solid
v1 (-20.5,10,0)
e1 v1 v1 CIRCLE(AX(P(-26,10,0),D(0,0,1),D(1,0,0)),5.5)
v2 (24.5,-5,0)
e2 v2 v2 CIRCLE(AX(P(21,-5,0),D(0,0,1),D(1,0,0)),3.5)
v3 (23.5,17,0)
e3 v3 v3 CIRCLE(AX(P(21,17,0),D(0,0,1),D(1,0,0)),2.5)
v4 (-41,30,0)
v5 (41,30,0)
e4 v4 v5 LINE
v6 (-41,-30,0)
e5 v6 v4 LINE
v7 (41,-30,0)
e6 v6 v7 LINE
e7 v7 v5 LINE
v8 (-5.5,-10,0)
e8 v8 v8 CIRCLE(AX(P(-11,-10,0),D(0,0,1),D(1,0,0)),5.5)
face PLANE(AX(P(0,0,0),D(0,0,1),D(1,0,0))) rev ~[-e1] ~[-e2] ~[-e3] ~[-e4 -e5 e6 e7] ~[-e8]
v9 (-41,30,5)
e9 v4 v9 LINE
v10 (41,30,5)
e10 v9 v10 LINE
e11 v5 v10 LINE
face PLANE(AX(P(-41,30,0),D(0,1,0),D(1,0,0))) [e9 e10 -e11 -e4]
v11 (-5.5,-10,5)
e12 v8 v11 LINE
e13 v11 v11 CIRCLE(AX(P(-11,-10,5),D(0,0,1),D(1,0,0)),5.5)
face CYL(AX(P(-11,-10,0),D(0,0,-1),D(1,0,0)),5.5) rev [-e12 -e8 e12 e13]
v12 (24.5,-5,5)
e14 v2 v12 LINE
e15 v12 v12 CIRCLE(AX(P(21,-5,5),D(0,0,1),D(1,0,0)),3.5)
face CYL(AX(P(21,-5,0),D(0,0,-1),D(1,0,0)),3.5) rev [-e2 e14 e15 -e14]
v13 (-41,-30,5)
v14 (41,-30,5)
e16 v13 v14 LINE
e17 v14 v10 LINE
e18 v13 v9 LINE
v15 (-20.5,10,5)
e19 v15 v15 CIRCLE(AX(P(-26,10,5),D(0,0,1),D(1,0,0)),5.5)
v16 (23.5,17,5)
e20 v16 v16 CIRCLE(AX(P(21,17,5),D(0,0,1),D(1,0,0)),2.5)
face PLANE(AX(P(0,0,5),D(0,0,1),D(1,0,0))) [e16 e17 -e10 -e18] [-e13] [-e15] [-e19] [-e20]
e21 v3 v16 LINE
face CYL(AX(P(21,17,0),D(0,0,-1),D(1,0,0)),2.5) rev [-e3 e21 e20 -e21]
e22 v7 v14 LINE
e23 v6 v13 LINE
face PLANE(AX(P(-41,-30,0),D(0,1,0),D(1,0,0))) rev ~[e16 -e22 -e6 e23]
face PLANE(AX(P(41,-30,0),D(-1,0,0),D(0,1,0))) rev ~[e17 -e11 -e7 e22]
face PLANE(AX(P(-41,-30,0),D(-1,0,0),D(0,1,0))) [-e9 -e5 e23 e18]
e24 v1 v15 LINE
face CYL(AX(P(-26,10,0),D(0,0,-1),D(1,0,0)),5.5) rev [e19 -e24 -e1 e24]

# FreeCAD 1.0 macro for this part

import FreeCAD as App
import Part
import Sketcher

V = App.Vector
Q = App.Units.Quantity


def add_polygon(sketch, points):
    """Adds a closed chain of lines whose ends are joined by coincident constraints."""
    first, n = sketch.GeometryCount, len(points)
    for a, b in zip(points, points[1:] + points[:1]):
        sketch.addGeometry(Part.LineSegment(App.Vector(*a, 0), App.Vector(*b, 0)), False)
    for i in range(n):
        sketch.addConstraint(Sketcher.Constraint("Coincident", first + i, 2, first + (i + 1) % n, 1))

doc = App.newDocument("Part")
body = doc.addObject("PartDesign::Body", "Body")

sketch1 = doc.addObject("Sketcher::SketchObject", "Sketch")
body.addObject(sketch1)
sketch1.AttachmentSupport = (doc.XY_Plane, [""])
sketch1.MapMode = "FlatFace"
add_polygon(sketch1, [(-41, 30), (-41, -30), (41, -30), (41, 30)])
sketch1.addGeometry(Part.Circle(V(-11, -10, 0), V(0, 0, 1), 5.5), False)
sketch1.addGeometry(Part.Circle(V(21, -5, 0), V(0, 0, 1), 3.5), False)
sketch1.addGeometry(Part.Circle(V(-26, 10, 0), V(0, 0, 1), 5.5), False)
sketch1.addGeometry(Part.Circle(V(21, 17, 0), V(0, 0, 1), 2.5), False)
sketch1.addConstraint([
    Sketcher.Constraint("Vertical", 0),
    Sketcher.Constraint("Horizontal", 1),
    Sketcher.Constraint("Vertical", 2),
    Sketcher.Constraint("Horizontal", 3),
    Sketcher.Constraint("Equal", 4, 6),
    Sketcher.Constraint("Symmetric", 0, 2, 2, 2, -1, 1),
    Sketcher.Constraint("Vertical", 5, 3, 7, 3),
    Sketcher.Constraint("Diameter", 4, Q("11 mm")),
    Sketcher.Constraint("Diameter", 5, Q("7 mm")),
    Sketcher.Constraint("Diameter", 7, Q("5 mm")),
    Sketcher.Constraint("DistanceX", 1, 1, 1, 2, Q("82 mm")),
    Sketcher.Constraint("DistanceY", 0, 2, 0, 1, Q("60 mm")),
    Sketcher.Constraint("DistanceX", 4, 3, -1, 1, Q("11 mm")),
    Sketcher.Constraint("DistanceY", 4, 3, -1, 1, Q("10 mm")),
    Sketcher.Constraint("DistanceX", -1, 1, 5, 3, Q("21 mm")),
    Sketcher.Constraint("DistanceY", 5, 3, -1, 1, Q("5 mm")),
    Sketcher.Constraint("DistanceX", 6, 3, -1, 1, Q("26 mm")),
    Sketcher.Constraint("DistanceY", -1, 1, 6, 3, Q("10 mm")),
    Sketcher.Constraint("DistanceY", -1, 1, 7, 3, Q("17 mm")),
])
pad1 = doc.addObject("PartDesign::Pad", "Pad")
body.addObject(pad1)
pad1.Profile = sketch1
pad1.Length = 5

doc.recompute()
